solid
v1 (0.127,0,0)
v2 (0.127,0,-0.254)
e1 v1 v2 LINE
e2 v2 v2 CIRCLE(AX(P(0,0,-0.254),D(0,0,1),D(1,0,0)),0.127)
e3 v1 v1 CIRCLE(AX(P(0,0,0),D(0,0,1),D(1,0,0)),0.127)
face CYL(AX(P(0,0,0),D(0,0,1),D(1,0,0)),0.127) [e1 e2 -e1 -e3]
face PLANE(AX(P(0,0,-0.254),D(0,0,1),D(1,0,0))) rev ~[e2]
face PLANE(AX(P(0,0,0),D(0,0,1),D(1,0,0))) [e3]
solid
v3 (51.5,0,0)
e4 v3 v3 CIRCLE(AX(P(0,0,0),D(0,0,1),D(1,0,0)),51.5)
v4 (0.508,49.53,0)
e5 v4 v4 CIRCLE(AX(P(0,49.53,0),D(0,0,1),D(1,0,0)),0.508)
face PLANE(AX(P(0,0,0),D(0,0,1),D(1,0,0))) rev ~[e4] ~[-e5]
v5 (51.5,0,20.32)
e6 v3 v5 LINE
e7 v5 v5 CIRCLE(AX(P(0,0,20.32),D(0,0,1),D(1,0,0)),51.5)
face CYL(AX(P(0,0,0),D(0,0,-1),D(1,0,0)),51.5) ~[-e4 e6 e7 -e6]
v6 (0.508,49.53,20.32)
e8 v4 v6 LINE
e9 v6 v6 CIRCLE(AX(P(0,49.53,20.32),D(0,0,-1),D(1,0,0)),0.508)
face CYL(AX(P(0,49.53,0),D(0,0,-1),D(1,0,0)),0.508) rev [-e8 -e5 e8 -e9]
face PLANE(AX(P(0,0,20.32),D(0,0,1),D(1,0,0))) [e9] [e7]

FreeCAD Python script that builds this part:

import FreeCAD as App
import Part
import Sketcher
Q = App.Units.Quantity

doc = App.newDocument("Part")
body = doc.addObject("PartDesign::Body", "Body")

# Sketch on XY plane
sketch1 = body.newObject("Sketcher::SketchObject", "Sketch")
sketch1.AttachmentSupport = (doc.getObject("XY_Plane"), [""])
sketch1.MapMode = "FlatFace"
sketch1.addGeometry(Part.Circle(App.Vector(0, 0, 0), App.Vector(0, 0, 1), 51.5), False)
sketch1.addConstraint([
    Sketcher.Constraint("Coincident", 0, 3, -1, 1),
    Sketcher.Constraint("Diameter", 0, Q("103 mm")),
])
pad1 = body.newObject("PartDesign::Pad", "Pad")
pad1.Profile = sketch1
pad1.Length = Q("0.8 in")

# Sketch on XY plane
sketch2 = body.newObject("Sketcher::SketchObject", "Sketch001")
sketch2.AttachmentSupport = (doc.getObject("XY_Plane"), [""])
sketch2.MapMode = "FlatFace"
sketch2.addGeometry(Part.Circle(App.Vector(0, 49.53, 0), App.Vector(0, 0, 1), 0.508), False)
sketch2.addConstraint([
    Sketcher.Constraint("PointOnObject", 0, 3, -2),
    Sketcher.Constraint("Diameter", 0, Q("0.04 in")),
    Sketcher.Constraint("DistanceY", -1, 1, 0, 3, Q("1.95 in")),
])
pocket1 = body.newObject("PartDesign::Pocket", "Pocket")
pocket1.Profile = sketch2
pocket1.Length = Q("1 in")
pocket1.Reversed = True
body2 = doc.addObject("PartDesign::Body", "Body001")

# Sketch on XY plane
sketch3 = body2.newObject("Sketcher::SketchObject", "Sketch002")
sketch3.AttachmentSupport = (doc.getObject("XY_Plane001"), [""])
sketch3.MapMode = "FlatFace"
sketch3.addGeometry(Part.Circle(App.Vector(0, 0, 0), App.Vector(0, 0, 1), 0.127), False)
sketch3.addConstraint([
    Sketcher.Constraint("Coincident", 0, 3, -1, 1),
    Sketcher.Constraint("Diameter", 0, Q("0.01 in")),
])
pad2 = body2.newObject("PartDesign::Pad", "Pad001")
pad2.Profile = sketch3
pad2.Length = Q("0.01 in")
pad2.Reversed = True

doc.recompute()
